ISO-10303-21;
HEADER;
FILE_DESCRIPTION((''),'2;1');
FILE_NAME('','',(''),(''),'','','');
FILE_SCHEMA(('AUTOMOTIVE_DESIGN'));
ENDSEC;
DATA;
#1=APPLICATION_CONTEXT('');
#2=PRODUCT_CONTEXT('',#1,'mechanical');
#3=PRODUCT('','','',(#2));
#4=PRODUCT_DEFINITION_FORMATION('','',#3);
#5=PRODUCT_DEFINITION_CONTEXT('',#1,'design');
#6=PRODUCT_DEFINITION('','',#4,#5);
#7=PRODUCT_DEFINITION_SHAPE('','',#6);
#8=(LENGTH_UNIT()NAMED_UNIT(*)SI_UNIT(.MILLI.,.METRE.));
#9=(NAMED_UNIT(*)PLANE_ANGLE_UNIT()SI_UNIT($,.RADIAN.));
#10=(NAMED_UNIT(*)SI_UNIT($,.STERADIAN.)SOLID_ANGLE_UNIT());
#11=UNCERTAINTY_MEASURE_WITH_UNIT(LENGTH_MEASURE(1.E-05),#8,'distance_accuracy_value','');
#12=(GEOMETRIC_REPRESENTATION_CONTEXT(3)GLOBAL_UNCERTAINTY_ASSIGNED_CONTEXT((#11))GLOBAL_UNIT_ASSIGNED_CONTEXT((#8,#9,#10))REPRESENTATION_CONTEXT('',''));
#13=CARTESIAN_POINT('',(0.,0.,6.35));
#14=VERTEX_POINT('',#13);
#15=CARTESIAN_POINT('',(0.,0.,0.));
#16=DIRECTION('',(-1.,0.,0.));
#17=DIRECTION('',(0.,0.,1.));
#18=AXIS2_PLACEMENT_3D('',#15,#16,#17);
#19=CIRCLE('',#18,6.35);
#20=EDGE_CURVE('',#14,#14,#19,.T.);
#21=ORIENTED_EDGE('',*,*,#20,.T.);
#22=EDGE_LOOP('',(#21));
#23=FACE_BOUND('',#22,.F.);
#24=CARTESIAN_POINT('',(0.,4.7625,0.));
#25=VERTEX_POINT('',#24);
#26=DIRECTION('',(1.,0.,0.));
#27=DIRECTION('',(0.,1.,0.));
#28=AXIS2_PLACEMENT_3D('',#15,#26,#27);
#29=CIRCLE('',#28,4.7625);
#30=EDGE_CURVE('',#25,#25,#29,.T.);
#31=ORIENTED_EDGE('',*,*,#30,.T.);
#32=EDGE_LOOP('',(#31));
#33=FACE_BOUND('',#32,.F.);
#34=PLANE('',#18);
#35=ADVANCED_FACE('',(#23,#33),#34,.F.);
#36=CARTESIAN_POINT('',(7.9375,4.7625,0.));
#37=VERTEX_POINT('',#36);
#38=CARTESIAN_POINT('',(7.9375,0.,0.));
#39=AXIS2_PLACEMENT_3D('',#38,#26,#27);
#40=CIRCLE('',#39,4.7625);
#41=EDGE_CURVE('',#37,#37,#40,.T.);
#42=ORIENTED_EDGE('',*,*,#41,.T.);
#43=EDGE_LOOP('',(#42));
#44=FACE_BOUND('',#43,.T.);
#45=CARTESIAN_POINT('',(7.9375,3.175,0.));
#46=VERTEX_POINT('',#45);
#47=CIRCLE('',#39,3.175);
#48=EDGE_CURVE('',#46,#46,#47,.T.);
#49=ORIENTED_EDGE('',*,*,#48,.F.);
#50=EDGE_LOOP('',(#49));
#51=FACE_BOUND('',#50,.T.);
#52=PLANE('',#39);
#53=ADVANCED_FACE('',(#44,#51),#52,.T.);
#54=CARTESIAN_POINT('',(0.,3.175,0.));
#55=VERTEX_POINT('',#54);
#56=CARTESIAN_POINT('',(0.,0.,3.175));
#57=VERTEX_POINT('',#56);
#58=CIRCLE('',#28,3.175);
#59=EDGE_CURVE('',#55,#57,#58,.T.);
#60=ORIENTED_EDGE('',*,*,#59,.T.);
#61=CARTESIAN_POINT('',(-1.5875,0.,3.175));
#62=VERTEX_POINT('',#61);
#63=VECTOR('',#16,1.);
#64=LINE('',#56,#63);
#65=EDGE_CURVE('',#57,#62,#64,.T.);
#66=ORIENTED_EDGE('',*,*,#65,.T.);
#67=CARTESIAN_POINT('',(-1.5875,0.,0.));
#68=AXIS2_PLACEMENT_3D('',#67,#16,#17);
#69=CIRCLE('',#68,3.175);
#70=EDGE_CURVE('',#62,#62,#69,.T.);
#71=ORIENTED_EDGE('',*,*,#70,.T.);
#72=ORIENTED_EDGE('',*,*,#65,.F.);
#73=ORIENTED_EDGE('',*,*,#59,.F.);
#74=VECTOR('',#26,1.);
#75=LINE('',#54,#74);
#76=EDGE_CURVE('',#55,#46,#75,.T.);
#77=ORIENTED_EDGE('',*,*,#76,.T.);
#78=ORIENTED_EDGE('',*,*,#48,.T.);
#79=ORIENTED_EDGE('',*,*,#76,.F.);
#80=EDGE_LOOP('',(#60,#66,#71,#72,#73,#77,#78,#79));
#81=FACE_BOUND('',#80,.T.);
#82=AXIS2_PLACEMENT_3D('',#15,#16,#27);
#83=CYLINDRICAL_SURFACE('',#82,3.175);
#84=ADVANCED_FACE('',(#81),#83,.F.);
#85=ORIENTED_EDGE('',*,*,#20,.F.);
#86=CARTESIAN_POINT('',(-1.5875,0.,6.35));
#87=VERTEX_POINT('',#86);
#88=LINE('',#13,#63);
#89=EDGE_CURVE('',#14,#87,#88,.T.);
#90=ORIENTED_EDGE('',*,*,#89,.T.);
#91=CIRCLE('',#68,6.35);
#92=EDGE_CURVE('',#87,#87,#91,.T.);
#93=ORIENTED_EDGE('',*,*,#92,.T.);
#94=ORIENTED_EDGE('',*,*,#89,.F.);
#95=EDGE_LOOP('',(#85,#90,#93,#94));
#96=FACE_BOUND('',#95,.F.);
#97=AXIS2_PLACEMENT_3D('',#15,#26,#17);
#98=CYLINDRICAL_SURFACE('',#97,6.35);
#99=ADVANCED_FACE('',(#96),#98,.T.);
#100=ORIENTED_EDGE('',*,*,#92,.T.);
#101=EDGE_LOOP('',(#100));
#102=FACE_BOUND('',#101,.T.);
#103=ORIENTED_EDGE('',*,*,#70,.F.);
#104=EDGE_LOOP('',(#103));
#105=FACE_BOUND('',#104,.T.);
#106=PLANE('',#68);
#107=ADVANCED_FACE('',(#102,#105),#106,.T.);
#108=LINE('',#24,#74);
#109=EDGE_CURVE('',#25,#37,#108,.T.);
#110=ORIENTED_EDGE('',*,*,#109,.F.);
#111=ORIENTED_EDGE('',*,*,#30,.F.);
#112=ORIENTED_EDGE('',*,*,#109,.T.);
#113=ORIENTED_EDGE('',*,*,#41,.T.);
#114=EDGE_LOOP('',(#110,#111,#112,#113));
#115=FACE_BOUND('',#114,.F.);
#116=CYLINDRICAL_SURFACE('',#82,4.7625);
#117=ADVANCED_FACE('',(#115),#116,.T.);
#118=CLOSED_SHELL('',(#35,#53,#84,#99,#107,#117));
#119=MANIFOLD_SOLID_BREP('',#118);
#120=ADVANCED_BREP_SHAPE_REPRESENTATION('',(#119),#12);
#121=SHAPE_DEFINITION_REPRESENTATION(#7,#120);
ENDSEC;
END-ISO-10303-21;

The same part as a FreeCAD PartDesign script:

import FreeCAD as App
import Part
import Sketcher
Q = App.Units.Quantity

doc = App.newDocument("Part")
params = doc.addObject("Spreadsheet::Sheet", "Params")
for row, (alias, value) in enumerate([
    ("sketch1_diameter", "0.25 in"),
    ("sketch1_diameter2", "0.375 in"),
    ("pad1_length", "0.3125 in"),
    ("sketch2_diameter", "0.5 in"),
    ("sketch2_diameter2", "0.25 in"),
    ("pad2_length", "0.0625 in"),
], start=1):
    params.set(f"A{row}", alias)
    params.set(f"B{row}", "=" + value)
    params.setAlias(f"B{row}", alias)

body = doc.addObject("PartDesign::Body", "Body")

# Sketch on YZ plane
sketch1 = body.newObject("Sketcher::SketchObject", "Sketch")
sketch1.AttachmentSupport = (doc.getObject("YZ_Plane"), [""])
sketch1.MapMode = "FlatFace"
sketch1.addGeometry(Part.Circle(App.Vector(0, 0, 0), App.Vector(0, 0, 1), 4.8), False)
sketch1.addGeometry(Part.Circle(App.Vector(0, 0, 0), App.Vector(0, 0, 1), 3.2), False)
sketch1.addConstraint(Sketcher.Constraint("Coincident", 0, 3, -1, 1))
sketch1.addConstraint(Sketcher.Constraint("Coincident", 1, 3, -1, 1))
sketch1.addConstraint(Sketcher.Constraint("Diameter", 1, Q("0.25 in")))
sketch1.addConstraint(Sketcher.Constraint("Diameter", 0, Q("0.375 in")))
sketch1.setExpression("Constraints[2]", "Params.sketch1_diameter")
sketch1.setExpression("Constraints[3]", "Params.sketch1_diameter2")
pad1 = body.newObject("PartDesign::Pad", "Pad")
pad1.Profile = sketch1
pad1.setExpression("Length", "Params.pad1_length")

# Sketch on YZ plane
sketch2 = body.newObject("Sketcher::SketchObject", "Sketch001")
sketch2.AttachmentSupport = (doc.getObject("YZ_Plane"), [""])
sketch2.MapMode = "FlatFace"
sketch2.addGeometry(Part.Circle(App.Vector(0, 0, 0), App.Vector(0, 0, 1), 6.3), False)
sketch2.addGeometry(Part.Circle(App.Vector(0, 0, 0), App.Vector(0, 0, 1), 3.2), False)
sketch2.addConstraint(Sketcher.Constraint("Coincident", 0, 3, -1, 1))
sketch2.addConstraint(Sketcher.Constraint("Coincident", 1, 3, -1, 1))
sketch2.addConstraint(Sketcher.Constraint("Diameter", 0, Q("0.5 in")))
sketch2.addConstraint(Sketcher.Constraint("Diameter", 1, Q("0.25 in")))
sketch2.setExpression("Constraints[2]", "Params.sketch2_diameter")
sketch2.setExpression("Constraints[3]", "Params.sketch2_diameter2")
pad2 = body.newObject("PartDesign::Pad", "Pad001")
pad2.Profile = sketch2
pad2.setExpression("Length", "Params.pad2_length")
pad2.Reversed = True

doc.recompute()
